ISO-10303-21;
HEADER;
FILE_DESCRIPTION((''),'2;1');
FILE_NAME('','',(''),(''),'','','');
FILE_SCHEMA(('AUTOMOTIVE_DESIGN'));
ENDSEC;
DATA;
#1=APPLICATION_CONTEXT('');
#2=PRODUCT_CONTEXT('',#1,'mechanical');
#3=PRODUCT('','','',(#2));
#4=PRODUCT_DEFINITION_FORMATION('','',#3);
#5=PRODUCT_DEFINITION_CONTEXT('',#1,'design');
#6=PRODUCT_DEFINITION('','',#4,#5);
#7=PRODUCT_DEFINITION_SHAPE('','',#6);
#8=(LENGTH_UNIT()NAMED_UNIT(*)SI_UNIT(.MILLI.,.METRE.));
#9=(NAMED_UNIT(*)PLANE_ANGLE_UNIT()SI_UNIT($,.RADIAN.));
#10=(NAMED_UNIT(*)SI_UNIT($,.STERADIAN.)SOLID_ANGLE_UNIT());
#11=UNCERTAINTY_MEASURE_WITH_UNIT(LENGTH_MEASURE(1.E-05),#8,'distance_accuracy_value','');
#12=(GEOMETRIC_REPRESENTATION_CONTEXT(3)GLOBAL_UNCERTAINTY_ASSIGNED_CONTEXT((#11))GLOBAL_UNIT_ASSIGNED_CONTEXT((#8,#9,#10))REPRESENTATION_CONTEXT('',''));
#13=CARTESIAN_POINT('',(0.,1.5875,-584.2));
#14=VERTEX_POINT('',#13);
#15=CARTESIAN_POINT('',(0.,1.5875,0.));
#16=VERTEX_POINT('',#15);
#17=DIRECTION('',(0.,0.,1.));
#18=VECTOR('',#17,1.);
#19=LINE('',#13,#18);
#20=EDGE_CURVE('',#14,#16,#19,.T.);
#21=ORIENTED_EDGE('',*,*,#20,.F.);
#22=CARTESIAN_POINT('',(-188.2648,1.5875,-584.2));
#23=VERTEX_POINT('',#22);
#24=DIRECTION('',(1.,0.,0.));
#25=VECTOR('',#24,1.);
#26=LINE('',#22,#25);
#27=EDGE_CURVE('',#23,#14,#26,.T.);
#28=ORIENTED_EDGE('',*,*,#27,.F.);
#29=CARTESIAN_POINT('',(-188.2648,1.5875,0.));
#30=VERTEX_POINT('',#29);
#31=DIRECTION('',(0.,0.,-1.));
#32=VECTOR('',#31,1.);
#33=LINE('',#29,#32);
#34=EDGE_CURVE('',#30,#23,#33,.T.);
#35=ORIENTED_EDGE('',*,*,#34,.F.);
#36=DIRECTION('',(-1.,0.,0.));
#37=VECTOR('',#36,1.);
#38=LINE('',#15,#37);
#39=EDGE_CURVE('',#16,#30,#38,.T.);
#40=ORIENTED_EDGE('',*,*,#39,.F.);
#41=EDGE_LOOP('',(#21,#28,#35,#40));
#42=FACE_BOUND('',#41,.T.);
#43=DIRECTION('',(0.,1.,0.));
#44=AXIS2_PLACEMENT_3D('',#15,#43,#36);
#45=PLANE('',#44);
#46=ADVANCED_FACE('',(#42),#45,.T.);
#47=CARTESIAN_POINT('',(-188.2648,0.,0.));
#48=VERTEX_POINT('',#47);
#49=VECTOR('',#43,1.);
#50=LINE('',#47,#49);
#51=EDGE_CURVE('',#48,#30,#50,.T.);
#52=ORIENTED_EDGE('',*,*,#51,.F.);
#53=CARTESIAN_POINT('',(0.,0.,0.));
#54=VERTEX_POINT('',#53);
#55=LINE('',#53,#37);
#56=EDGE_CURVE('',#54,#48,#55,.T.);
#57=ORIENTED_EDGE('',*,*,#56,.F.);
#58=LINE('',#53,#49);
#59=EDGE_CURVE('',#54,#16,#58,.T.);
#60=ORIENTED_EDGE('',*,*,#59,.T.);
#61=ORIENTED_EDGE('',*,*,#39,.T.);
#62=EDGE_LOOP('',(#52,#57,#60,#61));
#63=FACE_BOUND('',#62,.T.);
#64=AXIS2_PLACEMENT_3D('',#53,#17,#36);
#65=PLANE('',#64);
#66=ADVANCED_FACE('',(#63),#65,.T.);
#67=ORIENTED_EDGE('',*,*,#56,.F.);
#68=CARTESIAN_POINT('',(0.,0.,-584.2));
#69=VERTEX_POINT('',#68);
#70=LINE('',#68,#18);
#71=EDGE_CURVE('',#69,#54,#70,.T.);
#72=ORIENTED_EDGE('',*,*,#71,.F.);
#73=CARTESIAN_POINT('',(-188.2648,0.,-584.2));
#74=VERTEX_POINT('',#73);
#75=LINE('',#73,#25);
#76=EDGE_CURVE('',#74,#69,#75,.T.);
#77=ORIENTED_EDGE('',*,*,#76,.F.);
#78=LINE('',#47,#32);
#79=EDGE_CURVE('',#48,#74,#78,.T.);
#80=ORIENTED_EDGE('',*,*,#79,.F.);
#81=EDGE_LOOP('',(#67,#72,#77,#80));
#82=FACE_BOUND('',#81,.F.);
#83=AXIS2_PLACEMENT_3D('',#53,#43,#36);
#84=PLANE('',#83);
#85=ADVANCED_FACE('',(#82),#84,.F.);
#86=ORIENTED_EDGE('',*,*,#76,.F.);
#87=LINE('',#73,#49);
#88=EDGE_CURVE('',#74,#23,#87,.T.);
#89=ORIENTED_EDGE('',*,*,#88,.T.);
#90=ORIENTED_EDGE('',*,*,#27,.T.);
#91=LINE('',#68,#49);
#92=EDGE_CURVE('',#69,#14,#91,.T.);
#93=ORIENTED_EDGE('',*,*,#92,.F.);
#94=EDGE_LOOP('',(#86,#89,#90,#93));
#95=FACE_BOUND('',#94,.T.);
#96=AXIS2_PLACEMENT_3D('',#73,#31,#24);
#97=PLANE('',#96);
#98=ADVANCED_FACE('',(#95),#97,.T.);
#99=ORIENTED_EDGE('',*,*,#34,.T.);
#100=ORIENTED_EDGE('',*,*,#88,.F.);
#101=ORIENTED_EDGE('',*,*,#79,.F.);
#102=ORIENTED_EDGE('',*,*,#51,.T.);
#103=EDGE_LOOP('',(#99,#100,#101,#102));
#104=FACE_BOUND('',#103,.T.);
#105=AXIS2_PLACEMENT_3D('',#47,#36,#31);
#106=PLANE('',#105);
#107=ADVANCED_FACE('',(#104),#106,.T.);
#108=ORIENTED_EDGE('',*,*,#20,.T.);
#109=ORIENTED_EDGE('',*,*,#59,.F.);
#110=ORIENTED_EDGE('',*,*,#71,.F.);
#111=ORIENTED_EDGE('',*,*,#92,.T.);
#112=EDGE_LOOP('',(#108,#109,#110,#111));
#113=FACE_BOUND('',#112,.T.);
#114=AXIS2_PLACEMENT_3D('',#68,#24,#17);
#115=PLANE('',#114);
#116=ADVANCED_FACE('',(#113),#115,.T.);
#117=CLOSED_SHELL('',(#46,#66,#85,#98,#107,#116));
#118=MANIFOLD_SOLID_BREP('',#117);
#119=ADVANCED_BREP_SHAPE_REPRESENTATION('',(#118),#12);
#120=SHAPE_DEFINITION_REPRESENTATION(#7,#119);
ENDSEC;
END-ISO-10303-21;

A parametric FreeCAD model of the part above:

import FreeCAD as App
import Part
import Sketcher
from FreeCAD import Vector
Q = App.Units.Quantity


def add_polygon(sketch, points):
    """Adds a closed chain of lines whose ends are joined by coincident constraints."""
    first, n = sketch.GeometryCount, len(points)
    for a, b in zip(points, points[1:] + points[:1]):
        sketch.addGeometry(Part.LineSegment(App.Vector(*a, 0), App.Vector(*b, 0)), False)
    for i in range(n):
        sketch.addConstraint(Sketcher.Constraint("Coincident", first + i, 2, first + (i + 1) % n, 1))

doc = App.newDocument("Part")
body = doc.addObject("PartDesign::Body", "Body")

# Sketch on XZ plane
sketch1 = doc.addObject("Sketcher::SketchObject", "Sketch")
body.addObject(sketch1)
sketch1.AttachmentSupport = (doc.XZ_Plane, [""])
sketch1.MapMode = "FlatFace"
add_polygon(sketch1, [(-188, 0), (0, 0), (0, -584), (-188, -584)])  # lines 0-3
sketch1.addConstraint(Sketcher.Constraint("Horizontal", 0))
sketch1.addConstraint(Sketcher.Constraint("Vertical", 1))
sketch1.addConstraint(Sketcher.Constraint("Horizontal", 2))
sketch1.addConstraint(Sketcher.Constraint("Vertical", 3))
sketch1.addConstraint(Sketcher.Constraint("Coincident", 0, 2, -1, 1))
sketch1.addConstraint(Sketcher.Constraint("DistanceY", 1, 2, 1, 1, Q("23 in")))
sketch1.addConstraint(Sketcher.Constraint("DistanceX", 0, 1, 0, 2, Q("7.412 in")))
pad1 = doc.addObject("PartDesign::Pad", "Pad")
body.addObject(pad1)
pad1.Profile = sketch1
pad1.Length = Q("0.0625 in")
pad1.Reversed = True

doc.recompute()
